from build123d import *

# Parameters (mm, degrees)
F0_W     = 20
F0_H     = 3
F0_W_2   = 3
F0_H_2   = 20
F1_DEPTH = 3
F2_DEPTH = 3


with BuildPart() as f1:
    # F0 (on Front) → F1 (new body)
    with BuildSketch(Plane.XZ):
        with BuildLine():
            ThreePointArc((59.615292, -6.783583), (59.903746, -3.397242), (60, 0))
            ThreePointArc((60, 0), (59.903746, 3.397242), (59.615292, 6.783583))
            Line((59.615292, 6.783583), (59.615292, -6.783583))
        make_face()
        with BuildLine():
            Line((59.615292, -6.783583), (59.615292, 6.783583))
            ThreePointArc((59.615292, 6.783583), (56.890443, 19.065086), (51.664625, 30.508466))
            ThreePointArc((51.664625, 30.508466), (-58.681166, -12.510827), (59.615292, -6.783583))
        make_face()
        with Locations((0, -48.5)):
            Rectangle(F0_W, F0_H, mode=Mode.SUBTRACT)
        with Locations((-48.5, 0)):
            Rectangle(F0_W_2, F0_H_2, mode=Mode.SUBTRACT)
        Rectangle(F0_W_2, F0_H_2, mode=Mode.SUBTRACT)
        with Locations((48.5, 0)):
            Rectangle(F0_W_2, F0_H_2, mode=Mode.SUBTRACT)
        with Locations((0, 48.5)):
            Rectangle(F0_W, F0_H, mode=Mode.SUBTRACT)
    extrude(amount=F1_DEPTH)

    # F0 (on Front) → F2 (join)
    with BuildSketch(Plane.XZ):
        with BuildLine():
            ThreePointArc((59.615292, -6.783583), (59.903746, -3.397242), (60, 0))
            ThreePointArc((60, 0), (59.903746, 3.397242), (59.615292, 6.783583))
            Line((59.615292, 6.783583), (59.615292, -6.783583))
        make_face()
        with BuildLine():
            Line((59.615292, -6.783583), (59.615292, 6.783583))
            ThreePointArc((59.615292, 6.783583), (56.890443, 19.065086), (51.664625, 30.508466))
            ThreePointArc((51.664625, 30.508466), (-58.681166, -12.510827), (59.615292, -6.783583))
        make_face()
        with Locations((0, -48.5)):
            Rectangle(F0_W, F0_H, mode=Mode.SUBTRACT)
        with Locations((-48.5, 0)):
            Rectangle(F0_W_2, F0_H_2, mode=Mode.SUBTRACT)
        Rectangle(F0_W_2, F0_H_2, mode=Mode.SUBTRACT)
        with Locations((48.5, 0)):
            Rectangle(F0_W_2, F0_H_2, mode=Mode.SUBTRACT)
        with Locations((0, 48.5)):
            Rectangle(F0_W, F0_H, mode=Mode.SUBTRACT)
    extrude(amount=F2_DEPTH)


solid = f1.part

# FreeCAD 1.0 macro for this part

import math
import FreeCAD as App
import Part
import Sketcher
from FreeCAD import Vector
Q = App.Units.Quantity

doc = App.newDocument("Part")
body = doc.addObject("PartDesign::Body", "Body")

# Sketch on XZ plane
sketch1 = doc.addObject("Sketcher::SketchObject", "Sketch")
body.addObject(sketch1)
sketch1.AttachmentSupport = (doc.XZ_Plane, [""])
sketch1.MapMode = "FlatFace"
sketch1.addGeometry([
    Part.ArcOfCircle(Part.Circle(Vector(0.000097, -0.000008, 0), Vector(0, 0, 1), 59.999903), math.radians(-6.491728), math.radians(0.000008)),  # 0
    Part.ArcOfCircle(Part.Circle(Vector(0.000097, 0.000008, 0), Vector(0, 0, 1), 59.999903), math.radians(-0.000008), math.radians(6.491728)),  # 1
    Part.ArcOfCircle(Part.Circle(Vector(0.000001, -0.000001, 0), Vector(0, 0, 1), 59.999999), math.radians(6.491726), math.radians(30.562267)),  # 2
    Part.ArcOfCircle(Part.Circle(Vector(0, -0.000001, 0), Vector(0, 0, 1), 60), math.radians(30.562267), math.radians(353.508276)),  # 3
    Part.LineSegment(Vector(10, -50, 0), Vector(-10, -50, 0)),  # 4
    Part.LineSegment(Vector(-10, -50, 0), Vector(-10, -47, 0)),  # 5
    Part.LineSegment(Vector(-10, -47, 0), Vector(10, -47, 0)),  # 6
    Part.LineSegment(Vector(10, -47, 0), Vector(10, -50, 0)),  # 7
    Part.LineSegment(Vector(-47, -10, 0), Vector(-50, -10, 0)),  # 8
    Part.LineSegment(Vector(-50, -10, 0), Vector(-50, 10, 0)),  # 9
    Part.LineSegment(Vector(-50, 10, 0), Vector(-47, 10, 0)),  # 10
    Part.LineSegment(Vector(-47, 10, 0), Vector(-47, -10, 0)),  # 11
    Part.LineSegment(Vector(1.5, -10, 0), Vector(-1.5, -10, 0)),  # 12
    Part.LineSegment(Vector(-1.5, -10, 0), Vector(-1.5, 10, 0)),  # 13
    Part.LineSegment(Vector(-1.5, 10, 0), Vector(1.5, 10, 0)),  # 14
    Part.LineSegment(Vector(1.5, 10, 0), Vector(1.5, -10, 0)),  # 15
    Part.LineSegment(Vector(50, -10, 0), Vector(47, -10, 0)),  # 16
    Part.LineSegment(Vector(47, -10, 0), Vector(47, 10, 0)),  # 17
    Part.LineSegment(Vector(47, 10, 0), Vector(50, 10, 0)),  # 18
    Part.LineSegment(Vector(50, 10, 0), Vector(50, -10, 0)),  # 19
    Part.LineSegment(Vector(10, 47, 0), Vector(-10, 47, 0)),  # 20
    Part.LineSegment(Vector(-10, 47, 0), Vector(-10, 50, 0)),  # 21
    Part.LineSegment(Vector(-10, 50, 0), Vector(10, 50, 0)),  # 22
    Part.LineSegment(Vector(10, 50, 0), Vector(10, 47, 0)),  # 23
], False)
sketch1.addConstraint([
    Sketcher.Constraint("Coincident", 0, 2, 1, 1),
    Sketcher.Constraint("Coincident", 1, 2, 2, 1),
    Sketcher.Constraint("Coincident", 2, 2, 3, 1),
    Sketcher.Constraint("Coincident", 3, 2, 0, 1),
    Sketcher.Constraint("Coincident", 4, 2, 5, 1),
    Sketcher.Constraint("Coincident", 5, 2, 6, 1),
    Sketcher.Constraint("Coincident", 6, 2, 7, 1),
    Sketcher.Constraint("Coincident", 7, 2, 4, 1),
    Sketcher.Constraint("Coincident", 8, 2, 9, 1),
    Sketcher.Constraint("Coincident", 9, 2, 10, 1),
    Sketcher.Constraint("Coincident", 10, 2, 11, 1),
    Sketcher.Constraint("Coincident", 11, 2, 8, 1),
    Sketcher.Constraint("Coincident", 12, 2, 13, 1),
    Sketcher.Constraint("Coincident", 13, 2, 14, 1),
    Sketcher.Constraint("Coincident", 14, 2, 15, 1),
    Sketcher.Constraint("Coincident", 15, 2, 12, 1),
    Sketcher.Constraint("Coincident", 16, 2, 17, 1),
    Sketcher.Constraint("Coincident", 17, 2, 18, 1),
    Sketcher.Constraint("Coincident", 18, 2, 19, 1),
    Sketcher.Constraint("Coincident", 19, 2, 16, 1),
    Sketcher.Constraint("Coincident", 20, 2, 21, 1),
    Sketcher.Constraint("Coincident", 21, 2, 22, 1),
    Sketcher.Constraint("Coincident", 22, 2, 23, 1),
    Sketcher.Constraint("Coincident", 23, 2, 20, 1),
    Sketcher.Constraint("Horizontal", 4),
    Sketcher.Constraint("Vertical", 5),
    Sketcher.Constraint("Horizontal", 6),
    Sketcher.Constraint("Vertical", 7),
    Sketcher.Constraint("Horizontal", 8),
    Sketcher.Constraint("Vertical", 9),
    Sketcher.Constraint("Horizontal", 10),
    Sketcher.Constraint("Vertical", 11),
    Sketcher.Constraint("Horizontal", 12),
    Sketcher.Constraint("Vertical", 13),
    Sketcher.Constraint("Horizontal", 14),
    Sketcher.Constraint("Vertical", 15),
    Sketcher.Constraint("Horizontal", 16),
    Sketcher.Constraint("Vertical", 17),
    Sketcher.Constraint("Horizontal", 18),
    Sketcher.Constraint("Vertical", 19),
    Sketcher.Constraint("Horizontal", 20),
    Sketcher.Constraint("Vertical", 21),
    Sketcher.Constraint("Horizontal", 22),
    Sketcher.Constraint("Vertical", 23),
    Sketcher.Constraint("Coincident", 2, 3, -1, 1),
    Sketcher.Constraint("Coincident", 3, 3, -1, 1),
    Sketcher.Constraint("PointOnObject", 0, 2, -1),
    Sketcher.Constraint("Radius", 2, Q("59.999999 mm")),
    Sketcher.Constraint("DistanceX", 4, 2, 4, 1, Q("20 mm")),
    Sketcher.Constraint("DistanceX", 8, 2, 8, 1, Q("3 mm")),
    Sketcher.Constraint("DistanceX", 12, 2, 12, 1, Q("3 mm")),
    Sketcher.Constraint("DistanceX", 16, 2, 16, 1, Q("3 mm")),
    Sketcher.Constraint("DistanceX", 20, 2, 20, 1, Q("20 mm")),
    Sketcher.Constraint("DistanceY", 5, 1, 5, 2, Q("3 mm")),
    Sketcher.Constraint("DistanceY", 9, 1, 9, 2, Q("20 mm")),
    Sketcher.Constraint("DistanceY", 13, 1, 13, 2, Q("20 mm")),
    Sketcher.Constraint("DistanceY", 17, 1, 17, 2, Q("20 mm")),
    Sketcher.Constraint("DistanceY", 21, 1, 21, 2, Q("3 mm")),
    Sketcher.Constraint("DistanceX", -1, 1, 0, 2, Q("60 mm")),
    Sketcher.Constraint("DistanceX", 4, 2, -1, 1, Q("10 mm")),
    Sketcher.Constraint("DistanceY", 4, 2, -1, 1, Q("50 mm")),
    Sketcher.Constraint("DistanceX", 8, 2, -1, 1, Q("50 mm")),
    Sketcher.Constraint("DistanceY", 8, 2, -1, 1, Q("10 mm")),
    Sketcher.Constraint("DistanceY", 12, 2, -1, 1, Q("10 mm")),
    Sketcher.Constraint("DistanceX", -1, 1, 16, 2, Q("47 mm")),
    Sketcher.Constraint("DistanceY", 16, 2, -1, 1, Q("10 mm")),
    Sketcher.Constraint("DistanceX", 20, 2, -1, 1, Q("10 mm")),
    Sketcher.Constraint("DistanceY", -1, 1, 20, 2, Q("47 mm")),
    Sketcher.Constraint("DistanceX", 12, 2, -1, 1, Q("1.5 mm")),
    Sketcher.Constraint("Radius", 0, Q("59.999903 mm")),
    Sketcher.Constraint("Radius", 1, Q("59.999903 mm")),
    Sketcher.Constraint("DistanceX", -1, 1, 1, 2, Q("59.615292 mm")),
    Sketcher.Constraint("DistanceX", -1, 1, 3, 2, Q("59.615292 mm")),
    Sketcher.Constraint("DistanceY", 3, 2, 2, 2, Q("37.292049 mm")),
])
pad1 = doc.addObject("PartDesign::Pad", "Pad")
body.addObject(pad1)
pad1.Profile = sketch1
pad1.Length = 3

# Sketch on XZ plane
sketch2 = doc.addObject("Sketcher::SketchObject", "Sketch001")
body.addObject(sketch2)
sketch2.AttachmentSupport = (doc.XZ_Plane, [""])
sketch2.MapMode = "FlatFace"
sketch2.addGeometry([
    Part.ArcOfCircle(Part.Circle(Vector(0.000097, -0.000008, 0), Vector(0, 0, 1), 59.999903), math.radians(-6.491728), math.radians(0.000008)),  # 0
    Part.ArcOfCircle(Part.Circle(Vector(0.000097, 0.000008, 0), Vector(0, 0, 1), 59.999903), math.radians(-0.000008), math.radians(6.491728)),  # 1
    Part.ArcOfCircle(Part.Circle(Vector(0.000001, -0.000001, 0), Vector(0, 0, 1), 59.999999), math.radians(6.491726), math.radians(30.562267)),  # 2
    Part.ArcOfCircle(Part.Circle(Vector(0, -0.000001, 0), Vector(0, 0, 1), 60), math.radians(30.562267), math.radians(353.508276)),  # 3
    Part.LineSegment(Vector(10, -50, 0), Vector(-10, -50, 0)),  # 4
    Part.LineSegment(Vector(-10, -50, 0), Vector(-10, -47, 0)),  # 5
    Part.LineSegment(Vector(-10, -47, 0), Vector(10, -47, 0)),  # 6
    Part.LineSegment(Vector(10, -47, 0), Vector(10, -50, 0)),  # 7
    Part.LineSegment(Vector(-47, -10, 0), Vector(-50, -10, 0)),  # 8
    Part.LineSegment(Vector(-50, -10, 0), Vector(-50, 10, 0)),  # 9
    Part.LineSegment(Vector(-50, 10, 0), Vector(-47, 10, 0)),  # 10
    Part.LineSegment(Vector(-47, 10, 0), Vector(-47, -10, 0)),  # 11
    Part.LineSegment(Vector(1.5, -10, 0), Vector(-1.5, -10, 0)),  # 12
    Part.LineSegment(Vector(-1.5, -10, 0), Vector(-1.5, 10, 0)),  # 13
    Part.LineSegment(Vector(-1.5, 10, 0), Vector(1.5, 10, 0)),  # 14
    Part.LineSegment(Vector(1.5, 10, 0), Vector(1.5, -10, 0)),  # 15
    Part.LineSegment(Vector(50, -10, 0), Vector(47, -10, 0)),  # 16
    Part.LineSegment(Vector(47, -10, 0), Vector(47, 10, 0)),  # 17
    Part.LineSegment(Vector(47, 10, 0), Vector(50, 10, 0)),  # 18
    Part.LineSegment(Vector(50, 10, 0), Vector(50, -10, 0)),  # 19
    Part.LineSegment(Vector(10, 47, 0), Vector(-10, 47, 0)),  # 20
    Part.LineSegment(Vector(-10, 47, 0), Vector(-10, 50, 0)),  # 21
    Part.LineSegment(Vector(-10, 50, 0), Vector(10, 50, 0)),  # 22
    Part.LineSegment(Vector(10, 50, 0), Vector(10, 47, 0)),  # 23
], False)
sketch2.addConstraint([
    Sketcher.Constraint("Coincident", 0, 2, 1, 1),
    Sketcher.Constraint("Coincident", 1, 2, 2, 1),
    Sketcher.Constraint("Coincident", 2, 2, 3, 1),
    Sketcher.Constraint("Coincident", 3, 2, 0, 1),
    Sketcher.Constraint("Coincident", 4, 2, 5, 1),
    Sketcher.Constraint("Coincident", 5, 2, 6, 1),
    Sketcher.Constraint("Coincident", 6, 2, 7, 1),
    Sketcher.Constraint("Coincident", 7, 2, 4, 1),
    Sketcher.Constraint("Coincident", 8, 2, 9, 1),
    Sketcher.Constraint("Coincident", 9, 2, 10, 1),
    Sketcher.Constraint("Coincident", 10, 2, 11, 1),
    Sketcher.Constraint("Coincident", 11, 2, 8, 1),
    Sketcher.Constraint("Coincident", 12, 2, 13, 1),
    Sketcher.Constraint("Coincident", 13, 2, 14, 1),
    Sketcher.Constraint("Coincident", 14, 2, 15, 1),
    Sketcher.Constraint("Coincident", 15, 2, 12, 1),
    Sketcher.Constraint("Coincident", 16, 2, 17, 1),
    Sketcher.Constraint("Coincident", 17, 2, 18, 1),
    Sketcher.Constraint("Coincident", 18, 2, 19, 1),
    Sketcher.Constraint("Coincident", 19, 2, 16, 1),
    Sketcher.Constraint("Coincident", 20, 2, 21, 1),
    Sketcher.Constraint("Coincident", 21, 2, 22, 1),
    Sketcher.Constraint("Coincident", 22, 2, 23, 1),
    Sketcher.Constraint("Coincident", 23, 2, 20, 1),
    Sketcher.Constraint("Horizontal", 4),
    Sketcher.Constraint("Vertical", 5),
    Sketcher.Constraint("Horizontal", 6),
    Sketcher.Constraint("Vertical", 7),
    Sketcher.Constraint("Horizontal", 8),
    Sketcher.Constraint("Vertical", 9),
    Sketcher.Constraint("Horizontal", 10),
    Sketcher.Constraint("Vertical", 11),
    Sketcher.Constraint("Horizontal", 12),
    Sketcher.Constraint("Vertical", 13),
    Sketcher.Constraint("Horizontal", 14),
    Sketcher.Constraint("Vertical", 15),
    Sketcher.Constraint("Horizontal", 16),
    Sketcher.Constraint("Vertical", 17),
    Sketcher.Constraint("Horizontal", 18),
    Sketcher.Constraint("Vertical", 19),
    Sketcher.Constraint("Horizontal", 20),
    Sketcher.Constraint("Vertical", 21),
    Sketcher.Constraint("Horizontal", 22),
    Sketcher.Constraint("Vertical", 23),
    Sketcher.Constraint("Coincident", 2, 3, -1, 1),
    Sketcher.Constraint("Coincident", 3, 3, -1, 1),
    Sketcher.Constraint("PointOnObject", 0, 2, -1),
    Sketcher.Constraint("Radius", 2, Q("59.999999 mm")),
    Sketcher.Constraint("DistanceX", 4, 2, 4, 1, Q("20 mm")),
    Sketcher.Constraint("DistanceX", 8, 2, 8, 1, Q("3 mm")),
    Sketcher.Constraint("DistanceX", 12, 2, 12, 1, Q("3 mm")),
    Sketcher.Constraint("DistanceX", 16, 2, 16, 1, Q("3 mm")),
    Sketcher.Constraint("DistanceX", 20, 2, 20, 1, Q("20 mm")),
    Sketcher.Constraint("DistanceY", 5, 1, 5, 2, Q("3 mm")),
    Sketcher.Constraint("DistanceY", 9, 1, 9, 2, Q("20 mm")),
    Sketcher.Constraint("DistanceY", 13, 1, 13, 2, Q("20 mm")),
    Sketcher.Constraint("DistanceY", 17, 1, 17, 2, Q("20 mm")),
    Sketcher.Constraint("DistanceY", 21, 1, 21, 2, Q("3 mm")),
    Sketcher.Constraint("DistanceX", -1, 1, 0, 2, Q("60 mm")),
    Sketcher.Constraint("DistanceX", 4, 2, -1, 1, Q("10 mm")),
    Sketcher.Constraint("DistanceY", 4, 2, -1, 1, Q("50 mm")),
    Sketcher.Constraint("DistanceX", 8, 2, -1, 1, Q("50 mm")),
    Sketcher.Constraint("DistanceY", 8, 2, -1, 1, Q("10 mm")),
    Sketcher.Constraint("DistanceY", 12, 2, -1, 1, Q("10 mm")),
    Sketcher.Constraint("DistanceX", -1, 1, 16, 2, Q("47 mm")),
    Sketcher.Constraint("DistanceY", 16, 2, -1, 1, Q("10 mm")),
    Sketcher.Constraint("DistanceX", 20, 2, -1, 1, Q("10 mm")),
    Sketcher.Constraint("DistanceY", -1, 1, 20, 2, Q("47 mm")),
    Sketcher.Constraint("DistanceX", 12, 2, -1, 1, Q("1.5 mm")),
    Sketcher.Constraint("Radius", 0, Q("59.999903 mm")),
    Sketcher.Constraint("Radius", 1, Q("59.999903 mm")),
    Sketcher.Constraint("DistanceX", -1, 1, 1, 2, Q("59.615292 mm")),
    Sketcher.Constraint("DistanceX", -1, 1, 3, 2, Q("59.615292 mm")),
    Sketcher.Constraint("DistanceY", 3, 2, 2, 2, Q("37.292049 mm")),
])
pad2 = doc.addObject("PartDesign::Pad", "Pad001")
body.addObject(pad2)
pad2.Profile = sketch2
pad2.Length = 3

doc.recompute()
